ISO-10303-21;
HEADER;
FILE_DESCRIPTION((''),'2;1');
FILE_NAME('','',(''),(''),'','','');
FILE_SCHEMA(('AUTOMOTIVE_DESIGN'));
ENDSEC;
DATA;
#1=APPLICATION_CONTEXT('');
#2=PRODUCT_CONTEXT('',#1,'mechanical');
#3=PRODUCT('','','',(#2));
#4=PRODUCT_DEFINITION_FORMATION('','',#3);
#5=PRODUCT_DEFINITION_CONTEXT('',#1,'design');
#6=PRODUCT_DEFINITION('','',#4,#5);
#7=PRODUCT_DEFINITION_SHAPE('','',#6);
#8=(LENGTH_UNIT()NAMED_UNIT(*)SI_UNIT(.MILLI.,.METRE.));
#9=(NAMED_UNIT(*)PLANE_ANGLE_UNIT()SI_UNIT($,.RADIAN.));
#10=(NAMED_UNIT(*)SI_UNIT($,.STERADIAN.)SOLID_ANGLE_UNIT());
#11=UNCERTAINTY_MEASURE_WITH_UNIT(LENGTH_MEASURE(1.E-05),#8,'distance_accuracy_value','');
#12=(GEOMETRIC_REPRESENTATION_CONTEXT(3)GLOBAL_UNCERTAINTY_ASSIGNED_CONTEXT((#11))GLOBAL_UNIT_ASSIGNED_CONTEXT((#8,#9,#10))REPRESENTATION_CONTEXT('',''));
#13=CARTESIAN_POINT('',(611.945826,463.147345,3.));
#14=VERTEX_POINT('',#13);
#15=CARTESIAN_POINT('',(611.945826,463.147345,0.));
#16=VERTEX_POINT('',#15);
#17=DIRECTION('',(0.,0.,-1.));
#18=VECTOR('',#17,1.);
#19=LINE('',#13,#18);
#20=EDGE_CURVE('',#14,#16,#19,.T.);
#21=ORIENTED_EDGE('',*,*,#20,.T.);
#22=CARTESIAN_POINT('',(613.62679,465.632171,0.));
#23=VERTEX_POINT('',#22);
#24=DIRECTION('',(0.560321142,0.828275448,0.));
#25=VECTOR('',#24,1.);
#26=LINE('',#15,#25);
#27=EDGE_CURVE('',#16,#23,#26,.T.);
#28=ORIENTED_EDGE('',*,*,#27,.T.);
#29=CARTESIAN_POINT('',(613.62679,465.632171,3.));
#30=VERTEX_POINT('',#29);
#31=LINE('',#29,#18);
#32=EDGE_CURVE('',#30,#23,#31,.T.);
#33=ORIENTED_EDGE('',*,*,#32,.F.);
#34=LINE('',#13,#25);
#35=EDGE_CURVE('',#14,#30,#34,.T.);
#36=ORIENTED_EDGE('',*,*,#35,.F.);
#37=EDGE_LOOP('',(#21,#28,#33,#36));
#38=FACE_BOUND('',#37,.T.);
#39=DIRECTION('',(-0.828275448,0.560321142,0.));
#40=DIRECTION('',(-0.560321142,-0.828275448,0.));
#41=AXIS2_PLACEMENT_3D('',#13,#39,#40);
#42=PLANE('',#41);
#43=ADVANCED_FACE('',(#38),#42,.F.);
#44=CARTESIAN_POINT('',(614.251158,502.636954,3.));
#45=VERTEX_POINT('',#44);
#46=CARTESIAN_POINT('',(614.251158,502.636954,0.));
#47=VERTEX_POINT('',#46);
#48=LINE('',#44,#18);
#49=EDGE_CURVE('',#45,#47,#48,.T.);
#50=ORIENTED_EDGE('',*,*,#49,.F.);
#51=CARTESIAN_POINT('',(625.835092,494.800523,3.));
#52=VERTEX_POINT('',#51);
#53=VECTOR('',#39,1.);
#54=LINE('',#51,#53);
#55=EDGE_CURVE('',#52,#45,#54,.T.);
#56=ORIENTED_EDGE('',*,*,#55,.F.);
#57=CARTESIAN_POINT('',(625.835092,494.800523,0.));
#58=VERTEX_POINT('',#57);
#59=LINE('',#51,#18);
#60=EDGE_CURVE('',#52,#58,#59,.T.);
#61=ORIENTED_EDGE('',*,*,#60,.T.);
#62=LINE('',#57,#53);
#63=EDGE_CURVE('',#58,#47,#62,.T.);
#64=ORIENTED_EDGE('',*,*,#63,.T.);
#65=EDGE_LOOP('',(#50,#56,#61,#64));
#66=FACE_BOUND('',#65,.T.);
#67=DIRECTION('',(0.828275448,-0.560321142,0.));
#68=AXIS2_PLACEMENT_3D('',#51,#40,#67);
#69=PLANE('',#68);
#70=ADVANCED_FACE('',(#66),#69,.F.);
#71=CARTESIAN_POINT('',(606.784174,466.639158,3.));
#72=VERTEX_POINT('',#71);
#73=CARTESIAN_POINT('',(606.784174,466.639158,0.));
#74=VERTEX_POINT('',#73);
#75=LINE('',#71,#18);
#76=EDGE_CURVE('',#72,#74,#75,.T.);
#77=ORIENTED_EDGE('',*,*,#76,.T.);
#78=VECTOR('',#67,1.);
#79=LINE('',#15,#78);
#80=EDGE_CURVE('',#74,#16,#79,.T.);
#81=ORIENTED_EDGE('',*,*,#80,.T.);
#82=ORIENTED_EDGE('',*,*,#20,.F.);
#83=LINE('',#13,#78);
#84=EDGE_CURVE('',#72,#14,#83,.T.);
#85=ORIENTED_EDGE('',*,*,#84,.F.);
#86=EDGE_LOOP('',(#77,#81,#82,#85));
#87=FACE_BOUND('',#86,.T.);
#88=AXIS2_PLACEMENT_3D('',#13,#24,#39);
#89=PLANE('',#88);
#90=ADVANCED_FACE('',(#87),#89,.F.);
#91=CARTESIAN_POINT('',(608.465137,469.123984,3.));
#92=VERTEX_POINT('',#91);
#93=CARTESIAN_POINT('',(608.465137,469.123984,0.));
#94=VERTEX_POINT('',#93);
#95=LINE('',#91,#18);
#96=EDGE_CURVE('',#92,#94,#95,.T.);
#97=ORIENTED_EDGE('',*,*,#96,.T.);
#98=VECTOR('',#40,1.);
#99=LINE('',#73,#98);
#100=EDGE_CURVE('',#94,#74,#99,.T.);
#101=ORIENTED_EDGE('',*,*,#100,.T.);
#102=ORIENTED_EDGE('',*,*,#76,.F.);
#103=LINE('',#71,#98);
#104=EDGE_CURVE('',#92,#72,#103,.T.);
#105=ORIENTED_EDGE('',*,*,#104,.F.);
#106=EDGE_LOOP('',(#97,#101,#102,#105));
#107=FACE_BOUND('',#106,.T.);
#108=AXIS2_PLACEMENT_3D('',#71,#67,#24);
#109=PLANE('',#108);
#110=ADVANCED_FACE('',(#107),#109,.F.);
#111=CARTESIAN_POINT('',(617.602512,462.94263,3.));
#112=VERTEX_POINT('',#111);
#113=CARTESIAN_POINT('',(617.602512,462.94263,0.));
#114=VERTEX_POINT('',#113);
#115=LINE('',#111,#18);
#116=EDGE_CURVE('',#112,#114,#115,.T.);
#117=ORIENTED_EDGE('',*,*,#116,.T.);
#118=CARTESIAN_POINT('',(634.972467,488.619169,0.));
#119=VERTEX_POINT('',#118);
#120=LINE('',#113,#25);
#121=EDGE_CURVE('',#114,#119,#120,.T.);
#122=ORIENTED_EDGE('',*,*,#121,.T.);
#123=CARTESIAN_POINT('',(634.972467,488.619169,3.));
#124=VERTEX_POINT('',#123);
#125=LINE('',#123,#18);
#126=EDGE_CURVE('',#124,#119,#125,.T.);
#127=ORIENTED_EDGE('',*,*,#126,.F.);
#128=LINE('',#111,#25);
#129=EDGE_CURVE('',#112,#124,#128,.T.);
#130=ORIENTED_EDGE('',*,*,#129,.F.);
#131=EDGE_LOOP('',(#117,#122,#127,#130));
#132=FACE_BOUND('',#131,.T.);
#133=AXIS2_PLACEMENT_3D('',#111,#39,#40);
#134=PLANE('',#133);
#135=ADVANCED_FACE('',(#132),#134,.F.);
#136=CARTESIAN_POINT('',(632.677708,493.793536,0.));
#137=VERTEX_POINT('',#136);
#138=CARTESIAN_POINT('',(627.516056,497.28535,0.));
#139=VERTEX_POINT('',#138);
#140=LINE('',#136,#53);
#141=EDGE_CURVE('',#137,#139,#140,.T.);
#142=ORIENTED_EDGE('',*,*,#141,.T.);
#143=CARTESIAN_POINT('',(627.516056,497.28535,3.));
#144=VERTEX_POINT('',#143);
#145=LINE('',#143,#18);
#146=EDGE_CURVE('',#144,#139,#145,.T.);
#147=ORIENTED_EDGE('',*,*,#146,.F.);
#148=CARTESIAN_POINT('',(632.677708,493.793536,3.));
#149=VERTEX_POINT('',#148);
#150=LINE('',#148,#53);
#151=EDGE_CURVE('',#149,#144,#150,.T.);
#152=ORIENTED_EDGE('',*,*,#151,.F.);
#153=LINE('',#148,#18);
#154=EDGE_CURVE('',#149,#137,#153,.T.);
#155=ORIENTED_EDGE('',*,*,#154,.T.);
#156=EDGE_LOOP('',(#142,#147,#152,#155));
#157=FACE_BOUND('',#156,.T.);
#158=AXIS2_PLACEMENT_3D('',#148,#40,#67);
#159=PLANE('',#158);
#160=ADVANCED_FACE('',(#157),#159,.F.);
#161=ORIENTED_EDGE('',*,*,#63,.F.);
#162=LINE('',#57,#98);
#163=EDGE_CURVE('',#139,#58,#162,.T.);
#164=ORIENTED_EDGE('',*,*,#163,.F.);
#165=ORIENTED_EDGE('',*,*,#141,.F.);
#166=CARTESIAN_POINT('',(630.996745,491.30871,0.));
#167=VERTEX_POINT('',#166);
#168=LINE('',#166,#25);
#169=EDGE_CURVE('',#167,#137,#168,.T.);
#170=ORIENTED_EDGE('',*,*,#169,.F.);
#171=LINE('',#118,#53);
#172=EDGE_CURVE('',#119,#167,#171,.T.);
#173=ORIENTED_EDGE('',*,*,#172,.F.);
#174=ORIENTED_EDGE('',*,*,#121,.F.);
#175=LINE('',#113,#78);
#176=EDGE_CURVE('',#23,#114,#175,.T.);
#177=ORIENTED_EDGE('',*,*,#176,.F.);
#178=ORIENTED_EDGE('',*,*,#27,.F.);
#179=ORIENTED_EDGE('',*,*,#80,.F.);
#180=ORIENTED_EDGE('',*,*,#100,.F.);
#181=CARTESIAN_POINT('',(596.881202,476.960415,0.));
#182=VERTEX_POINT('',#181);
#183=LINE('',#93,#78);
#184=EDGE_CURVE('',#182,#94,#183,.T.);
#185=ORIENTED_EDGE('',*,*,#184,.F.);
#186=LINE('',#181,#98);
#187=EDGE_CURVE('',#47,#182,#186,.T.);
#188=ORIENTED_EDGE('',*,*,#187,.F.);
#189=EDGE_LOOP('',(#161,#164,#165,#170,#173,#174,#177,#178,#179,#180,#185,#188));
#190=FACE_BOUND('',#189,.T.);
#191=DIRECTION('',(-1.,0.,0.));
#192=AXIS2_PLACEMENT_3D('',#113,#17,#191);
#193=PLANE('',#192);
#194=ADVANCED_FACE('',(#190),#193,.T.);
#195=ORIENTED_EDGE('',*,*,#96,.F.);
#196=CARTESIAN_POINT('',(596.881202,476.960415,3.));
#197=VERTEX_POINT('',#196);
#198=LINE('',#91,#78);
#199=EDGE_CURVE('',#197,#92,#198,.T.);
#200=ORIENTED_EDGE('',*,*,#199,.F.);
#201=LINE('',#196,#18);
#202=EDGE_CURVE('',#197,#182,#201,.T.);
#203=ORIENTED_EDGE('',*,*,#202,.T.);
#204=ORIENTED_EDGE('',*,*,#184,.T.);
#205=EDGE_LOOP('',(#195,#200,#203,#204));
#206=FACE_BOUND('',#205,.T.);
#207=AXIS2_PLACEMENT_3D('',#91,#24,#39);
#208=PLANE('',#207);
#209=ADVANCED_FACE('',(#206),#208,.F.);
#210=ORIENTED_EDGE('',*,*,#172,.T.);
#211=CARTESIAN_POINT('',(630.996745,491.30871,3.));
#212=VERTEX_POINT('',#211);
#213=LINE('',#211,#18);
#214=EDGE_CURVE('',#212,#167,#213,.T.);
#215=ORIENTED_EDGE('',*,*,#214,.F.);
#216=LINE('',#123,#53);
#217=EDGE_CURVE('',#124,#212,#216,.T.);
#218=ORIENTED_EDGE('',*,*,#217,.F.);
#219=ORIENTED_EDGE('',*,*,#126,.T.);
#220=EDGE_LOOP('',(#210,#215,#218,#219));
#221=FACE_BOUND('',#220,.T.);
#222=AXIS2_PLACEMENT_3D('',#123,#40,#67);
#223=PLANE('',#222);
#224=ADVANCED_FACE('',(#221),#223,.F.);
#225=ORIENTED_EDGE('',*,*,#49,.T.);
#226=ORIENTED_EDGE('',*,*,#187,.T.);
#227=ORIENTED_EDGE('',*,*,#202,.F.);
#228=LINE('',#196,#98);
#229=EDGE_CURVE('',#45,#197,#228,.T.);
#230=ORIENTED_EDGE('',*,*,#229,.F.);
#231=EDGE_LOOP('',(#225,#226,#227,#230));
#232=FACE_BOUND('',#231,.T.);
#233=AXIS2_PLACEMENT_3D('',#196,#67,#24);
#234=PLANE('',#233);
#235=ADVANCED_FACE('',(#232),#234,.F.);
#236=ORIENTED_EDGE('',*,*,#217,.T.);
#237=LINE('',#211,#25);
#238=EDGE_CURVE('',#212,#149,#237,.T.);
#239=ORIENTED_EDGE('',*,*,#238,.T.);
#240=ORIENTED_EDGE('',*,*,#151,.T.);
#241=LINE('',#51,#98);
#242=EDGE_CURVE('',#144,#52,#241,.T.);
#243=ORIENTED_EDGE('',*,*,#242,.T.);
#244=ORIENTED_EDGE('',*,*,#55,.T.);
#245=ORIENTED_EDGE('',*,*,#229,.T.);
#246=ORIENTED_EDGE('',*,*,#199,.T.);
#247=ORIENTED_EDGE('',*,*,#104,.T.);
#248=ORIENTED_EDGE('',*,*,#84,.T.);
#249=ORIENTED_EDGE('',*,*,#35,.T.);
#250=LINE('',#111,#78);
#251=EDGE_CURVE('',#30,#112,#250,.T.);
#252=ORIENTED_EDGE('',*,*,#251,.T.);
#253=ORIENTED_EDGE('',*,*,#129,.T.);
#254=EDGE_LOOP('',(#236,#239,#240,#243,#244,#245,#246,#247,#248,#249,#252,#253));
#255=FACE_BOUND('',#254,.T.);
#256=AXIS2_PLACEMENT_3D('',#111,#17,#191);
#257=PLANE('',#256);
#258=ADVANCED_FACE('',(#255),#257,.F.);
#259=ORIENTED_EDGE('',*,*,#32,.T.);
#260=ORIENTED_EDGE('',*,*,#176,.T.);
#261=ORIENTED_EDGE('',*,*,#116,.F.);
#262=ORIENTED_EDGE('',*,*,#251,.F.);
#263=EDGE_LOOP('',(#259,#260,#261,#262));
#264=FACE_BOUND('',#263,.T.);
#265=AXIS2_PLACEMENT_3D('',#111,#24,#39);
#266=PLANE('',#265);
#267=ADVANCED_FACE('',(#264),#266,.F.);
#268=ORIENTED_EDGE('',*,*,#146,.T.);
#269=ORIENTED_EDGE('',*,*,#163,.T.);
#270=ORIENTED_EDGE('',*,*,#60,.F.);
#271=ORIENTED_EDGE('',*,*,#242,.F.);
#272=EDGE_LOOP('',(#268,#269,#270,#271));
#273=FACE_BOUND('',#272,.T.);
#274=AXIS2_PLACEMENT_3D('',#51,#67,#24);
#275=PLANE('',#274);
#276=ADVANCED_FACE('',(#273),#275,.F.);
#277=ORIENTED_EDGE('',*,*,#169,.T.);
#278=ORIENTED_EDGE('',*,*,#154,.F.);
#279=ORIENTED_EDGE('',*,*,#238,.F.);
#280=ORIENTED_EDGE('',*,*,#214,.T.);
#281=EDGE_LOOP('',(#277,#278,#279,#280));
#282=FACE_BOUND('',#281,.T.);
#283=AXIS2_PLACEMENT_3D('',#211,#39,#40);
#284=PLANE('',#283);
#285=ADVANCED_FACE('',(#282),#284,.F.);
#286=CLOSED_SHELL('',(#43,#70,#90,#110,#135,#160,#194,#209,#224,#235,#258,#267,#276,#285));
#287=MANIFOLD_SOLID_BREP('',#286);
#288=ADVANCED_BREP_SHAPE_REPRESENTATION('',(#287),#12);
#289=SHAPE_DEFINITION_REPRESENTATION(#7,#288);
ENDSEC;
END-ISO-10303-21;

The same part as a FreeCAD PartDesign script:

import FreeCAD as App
import Part
import Sketcher

V = App.Vector


def add_polygon(sketch, points):
    """Adds a closed chain of lines whose ends are joined by coincident constraints."""
    first, n = sketch.GeometryCount, len(points)
    for a, b in zip(points, points[1:] + points[:1]):
        sketch.addGeometry(Part.LineSegment(App.Vector(*a, 0), App.Vector(*b, 0)), False)
    for i in range(n):
        sketch.addConstraint(Sketcher.Constraint("Coincident", first + i, 2, first + (i + 1) % n, 1))

doc = App.newDocument("Part")
body = doc.addObject("PartDesign::Body", "Body")

# Sketch on XY plane
sketch1 = body.newObject("Sketcher::SketchObject", "Sketch")
sketch1.AttachmentSupport = (doc.getObject("XY_Plane"), [""])
sketch1.MapMode = "FlatFace"
add_polygon(sketch1, [(614.3, 502.6), (596.9, 477), (608.5, 469.1), (606.8, 466.6), (611.9, 463.1), (613.6, 465.6), (617.6, 462.9), (635, 488.6), (631, 491.3), (632.7, 493.8), (627.5, 497.3), (625.8, 494.8)])  # lines 0-11
sketch1.addConstraint([
    Sketcher.Constraint("Perpendicular", 0, 1),
    Sketcher.Constraint("Perpendicular", 1, 2),
    Sketcher.Constraint("Perpendicular", 2, 3),
    Sketcher.Constraint("Perpendicular", 3, 4),
    Sketcher.Constraint("Perpendicular", 4, 5),
    Sketcher.Constraint("Perpendicular", 5, 6),
    Sketcher.Constraint("Perpendicular", 6, 7),
    Sketcher.Constraint("Perpendicular", 7, 8),
    Sketcher.Constraint("Perpendicular", 8, 9),
    Sketcher.Constraint("Perpendicular", 9, 10),
    Sketcher.Constraint("Perpendicular", 10, 11),
    Sketcher.Constraint("Equal", 2, 4),
    Sketcher.Constraint("Equal", 0, 6),
    Sketcher.Constraint("Equal", 5, 7),
    Sketcher.Constraint("Equal", 4, 8),
    Sketcher.Constraint("Equal", 3, 9),
    Sketcher.Constraint("Distance", 0, 31.0),
    Sketcher.Constraint("Distance", 2, 3.0),
    Sketcher.Constraint("Distance", 5, 4.8),
    Sketcher.Constraint("DistanceX", 11, 2, 9, 2, 13.264898),
    Sketcher.Constraint("DistanceX", -1, 1, 4, 2, 613.62679),
    Sketcher.Constraint("DistanceY", -1, 1, 4, 2, 465.632171),
    Sketcher.Constraint("DistanceX", -1, 1, 5, 2, 617.602512),
    Sketcher.Constraint("DistanceY", -1, 1, 9, 2, 497.28535),
])
pad1 = body.newObject("PartDesign::Pad", "Pad")
pad1.Profile = sketch1
pad1.Length = 3

doc.recompute()
